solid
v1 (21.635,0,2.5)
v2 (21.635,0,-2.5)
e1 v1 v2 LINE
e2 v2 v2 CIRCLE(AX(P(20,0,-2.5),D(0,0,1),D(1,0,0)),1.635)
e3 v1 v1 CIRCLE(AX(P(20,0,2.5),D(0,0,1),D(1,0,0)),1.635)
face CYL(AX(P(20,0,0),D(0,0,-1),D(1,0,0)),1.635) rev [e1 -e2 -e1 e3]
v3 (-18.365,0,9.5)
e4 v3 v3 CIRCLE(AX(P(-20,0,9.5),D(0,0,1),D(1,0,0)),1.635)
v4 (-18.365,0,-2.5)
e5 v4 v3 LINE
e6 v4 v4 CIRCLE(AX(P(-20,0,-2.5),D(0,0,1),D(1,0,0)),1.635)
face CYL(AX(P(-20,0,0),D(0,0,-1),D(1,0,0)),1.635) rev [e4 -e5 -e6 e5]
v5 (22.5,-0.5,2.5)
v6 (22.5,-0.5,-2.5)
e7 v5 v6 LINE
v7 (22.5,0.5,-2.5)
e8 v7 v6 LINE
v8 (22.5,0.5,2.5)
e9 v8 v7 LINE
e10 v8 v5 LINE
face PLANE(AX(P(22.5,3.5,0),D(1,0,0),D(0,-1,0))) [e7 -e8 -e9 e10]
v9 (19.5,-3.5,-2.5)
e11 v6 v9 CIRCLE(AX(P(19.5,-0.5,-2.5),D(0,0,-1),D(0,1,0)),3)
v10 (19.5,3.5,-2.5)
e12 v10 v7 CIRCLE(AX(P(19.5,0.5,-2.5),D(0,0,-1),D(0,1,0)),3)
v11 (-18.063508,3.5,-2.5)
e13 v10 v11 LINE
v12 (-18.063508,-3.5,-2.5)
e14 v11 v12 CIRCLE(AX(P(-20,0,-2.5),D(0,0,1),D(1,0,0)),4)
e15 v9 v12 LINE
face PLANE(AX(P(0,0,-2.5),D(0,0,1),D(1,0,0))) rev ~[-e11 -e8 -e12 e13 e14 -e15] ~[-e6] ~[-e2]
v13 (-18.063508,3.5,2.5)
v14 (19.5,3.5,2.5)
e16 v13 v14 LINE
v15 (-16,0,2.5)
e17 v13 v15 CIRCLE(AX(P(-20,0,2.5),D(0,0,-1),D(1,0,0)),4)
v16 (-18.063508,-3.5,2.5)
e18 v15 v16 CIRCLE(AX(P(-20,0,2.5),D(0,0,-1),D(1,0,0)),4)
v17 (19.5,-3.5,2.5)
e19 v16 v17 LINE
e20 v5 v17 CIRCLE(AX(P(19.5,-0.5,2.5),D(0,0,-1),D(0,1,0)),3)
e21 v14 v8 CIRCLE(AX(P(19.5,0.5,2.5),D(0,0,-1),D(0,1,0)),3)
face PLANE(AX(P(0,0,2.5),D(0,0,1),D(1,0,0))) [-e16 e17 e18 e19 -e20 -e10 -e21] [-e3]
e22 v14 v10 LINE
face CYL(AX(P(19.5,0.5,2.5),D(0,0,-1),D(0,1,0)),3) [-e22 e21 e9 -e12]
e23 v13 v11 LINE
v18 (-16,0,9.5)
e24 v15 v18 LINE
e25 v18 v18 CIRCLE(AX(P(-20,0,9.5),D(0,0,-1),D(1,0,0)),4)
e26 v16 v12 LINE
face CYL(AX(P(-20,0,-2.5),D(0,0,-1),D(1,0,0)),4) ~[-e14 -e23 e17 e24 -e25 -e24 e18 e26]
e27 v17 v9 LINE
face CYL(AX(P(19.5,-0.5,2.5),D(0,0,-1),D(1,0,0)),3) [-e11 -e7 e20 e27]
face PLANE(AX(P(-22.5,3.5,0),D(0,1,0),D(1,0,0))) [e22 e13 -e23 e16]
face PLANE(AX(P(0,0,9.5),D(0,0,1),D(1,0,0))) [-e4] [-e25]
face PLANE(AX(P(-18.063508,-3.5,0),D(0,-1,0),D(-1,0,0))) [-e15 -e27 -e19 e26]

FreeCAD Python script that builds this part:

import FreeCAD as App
import Part
import Sketcher


def edges_at(feature, points):
    """Names of the edges that pass closest to the given points."""
    edges = feature.Shape.Edges
    near = lambda p: min(range(len(edges)), key=lambda i: edges[i].distToShape(Part.Vertex(*p))[0])
    return sorted({f"Edge{near(p) + 1}" for p in points})

doc = App.newDocument("Part")
body = doc.addObject("PartDesign::Body", "Body")

sketch1 = body.newObject("Sketcher::SketchObject", "Sketch")
sketch1.AttachmentSupport = (doc.getObject("XY_Plane"), [""])
sketch1.MapMode = "FlatFace"
sketch1.addGeometry(Part.LineSegment(App.Vector(-22.5, 3.5, 0), App.Vector(-22.5, -3.5, 0)), False)
sketch1.addGeometry(Part.LineSegment(App.Vector(-22.5, -3.5, 0), App.Vector(22.5, -3.5, 0)), False)
sketch1.addGeometry(Part.LineSegment(App.Vector(22.5, -3.5, 0), App.Vector(22.5, 3.5, 0)), False)
sketch1.addGeometry(Part.LineSegment(App.Vector(22.5, 3.5, 0), App.Vector(-22.5, 3.5, 0)), False)
sketch1.addGeometry(Part.Circle(App.Vector(-20, 0, 0), App.Vector(0, 0, 1), 1.6), False)
sketch1.addGeometry(Part.Circle(App.Vector(20, 0, 0), App.Vector(0, 0, 1), 1.6), False)
sketch1.addConstraint(Sketcher.Constraint("Coincident", 0, 2, 1, 1))
sketch1.addConstraint(Sketcher.Constraint("Coincident", 1, 2, 2, 1))
sketch1.addConstraint(Sketcher.Constraint("Coincident", 2, 2, 3, 1))
sketch1.addConstraint(Sketcher.Constraint("Coincident", 3, 2, 0, 1))
sketch1.addConstraint(Sketcher.Constraint("Vertical", 0))
sketch1.addConstraint(Sketcher.Constraint("Horizontal", 1))
sketch1.addConstraint(Sketcher.Constraint("Vertical", 2))
sketch1.addConstraint(Sketcher.Constraint("Horizontal", 3))
sketch1.addConstraint(Sketcher.Constraint("Equal", 4, 5))
sketch1.addConstraint(Sketcher.Constraint("Symmetric", 4, 3, 5, 3, -1, 1))
sketch1.addConstraint(Sketcher.Constraint("Symmetric", 0, 2, 2, 2, -1, 1))
sketch1.addConstraint(Sketcher.Constraint("PointOnObject", 4, 3, -1))
sketch1.addConstraint(Sketcher.Constraint("Diameter", 4, 3.27))
sketch1.addConstraint(Sketcher.Constraint("DistanceX", 1, 1, 1, 2, 45.0))
sketch1.addConstraint(Sketcher.Constraint("DistanceY", 0, 2, 0, 1, 7.0))
sketch1.addConstraint(Sketcher.Constraint("DistanceX", 4, 3, -1, 1, 20.0))
pad1 = body.newObject("PartDesign::Pad", "Pad")
pad1.Profile = sketch1
pad1.Length = 5
pad1.Midplane = True
doc.recompute()

fillet = body.newObject("PartDesign::Fillet", "Fillet")
fillet.Base = (pad1, edges_at(pad1, [
    (-22.5, 3.5, 0),
    (-22.5, -3.5, 0),
    (22.5, -3.5, 0),
    (22.5, 3.5, 0),
]))
fillet.Radius = 3

sketch2 = body.newObject("Sketcher::SketchObject", "Sketch001")
sketch2.AttachmentSupport = (doc.getObject("XY_Plane"), [""])
sketch2.MapMode = "FlatFace"
sketch2.AttachmentOffset = App.Placement(App.Vector(0, 0, -2.5), App.Rotation())
sketch2.addGeometry(Part.Circle(App.Vector(-20, 0, 0), App.Vector(0, 0, 1), 4), False)
sketch2.addGeometry(Part.Circle(App.Vector(-20, 0, 0), App.Vector(0, 0, 1), 1.6), False)
sketch2.addConstraint(Sketcher.Constraint("Coincident", 1, 3, 0, 3))
sketch2.addConstraint(Sketcher.Constraint("PointOnObject", 0, 3, -1))
sketch2.addConstraint(Sketcher.Constraint("Diameter", 0, 8.0))
sketch2.addConstraint(Sketcher.Constraint("Diameter", 1, 3.27))
sketch2.addConstraint(Sketcher.Constraint("DistanceX", 0, 3, -1, 1, 20.0))
pad2 = body.newObject("PartDesign::Pad", "Pad001")
pad2.Profile = sketch2
pad2.Length = 12

doc.recompute()
